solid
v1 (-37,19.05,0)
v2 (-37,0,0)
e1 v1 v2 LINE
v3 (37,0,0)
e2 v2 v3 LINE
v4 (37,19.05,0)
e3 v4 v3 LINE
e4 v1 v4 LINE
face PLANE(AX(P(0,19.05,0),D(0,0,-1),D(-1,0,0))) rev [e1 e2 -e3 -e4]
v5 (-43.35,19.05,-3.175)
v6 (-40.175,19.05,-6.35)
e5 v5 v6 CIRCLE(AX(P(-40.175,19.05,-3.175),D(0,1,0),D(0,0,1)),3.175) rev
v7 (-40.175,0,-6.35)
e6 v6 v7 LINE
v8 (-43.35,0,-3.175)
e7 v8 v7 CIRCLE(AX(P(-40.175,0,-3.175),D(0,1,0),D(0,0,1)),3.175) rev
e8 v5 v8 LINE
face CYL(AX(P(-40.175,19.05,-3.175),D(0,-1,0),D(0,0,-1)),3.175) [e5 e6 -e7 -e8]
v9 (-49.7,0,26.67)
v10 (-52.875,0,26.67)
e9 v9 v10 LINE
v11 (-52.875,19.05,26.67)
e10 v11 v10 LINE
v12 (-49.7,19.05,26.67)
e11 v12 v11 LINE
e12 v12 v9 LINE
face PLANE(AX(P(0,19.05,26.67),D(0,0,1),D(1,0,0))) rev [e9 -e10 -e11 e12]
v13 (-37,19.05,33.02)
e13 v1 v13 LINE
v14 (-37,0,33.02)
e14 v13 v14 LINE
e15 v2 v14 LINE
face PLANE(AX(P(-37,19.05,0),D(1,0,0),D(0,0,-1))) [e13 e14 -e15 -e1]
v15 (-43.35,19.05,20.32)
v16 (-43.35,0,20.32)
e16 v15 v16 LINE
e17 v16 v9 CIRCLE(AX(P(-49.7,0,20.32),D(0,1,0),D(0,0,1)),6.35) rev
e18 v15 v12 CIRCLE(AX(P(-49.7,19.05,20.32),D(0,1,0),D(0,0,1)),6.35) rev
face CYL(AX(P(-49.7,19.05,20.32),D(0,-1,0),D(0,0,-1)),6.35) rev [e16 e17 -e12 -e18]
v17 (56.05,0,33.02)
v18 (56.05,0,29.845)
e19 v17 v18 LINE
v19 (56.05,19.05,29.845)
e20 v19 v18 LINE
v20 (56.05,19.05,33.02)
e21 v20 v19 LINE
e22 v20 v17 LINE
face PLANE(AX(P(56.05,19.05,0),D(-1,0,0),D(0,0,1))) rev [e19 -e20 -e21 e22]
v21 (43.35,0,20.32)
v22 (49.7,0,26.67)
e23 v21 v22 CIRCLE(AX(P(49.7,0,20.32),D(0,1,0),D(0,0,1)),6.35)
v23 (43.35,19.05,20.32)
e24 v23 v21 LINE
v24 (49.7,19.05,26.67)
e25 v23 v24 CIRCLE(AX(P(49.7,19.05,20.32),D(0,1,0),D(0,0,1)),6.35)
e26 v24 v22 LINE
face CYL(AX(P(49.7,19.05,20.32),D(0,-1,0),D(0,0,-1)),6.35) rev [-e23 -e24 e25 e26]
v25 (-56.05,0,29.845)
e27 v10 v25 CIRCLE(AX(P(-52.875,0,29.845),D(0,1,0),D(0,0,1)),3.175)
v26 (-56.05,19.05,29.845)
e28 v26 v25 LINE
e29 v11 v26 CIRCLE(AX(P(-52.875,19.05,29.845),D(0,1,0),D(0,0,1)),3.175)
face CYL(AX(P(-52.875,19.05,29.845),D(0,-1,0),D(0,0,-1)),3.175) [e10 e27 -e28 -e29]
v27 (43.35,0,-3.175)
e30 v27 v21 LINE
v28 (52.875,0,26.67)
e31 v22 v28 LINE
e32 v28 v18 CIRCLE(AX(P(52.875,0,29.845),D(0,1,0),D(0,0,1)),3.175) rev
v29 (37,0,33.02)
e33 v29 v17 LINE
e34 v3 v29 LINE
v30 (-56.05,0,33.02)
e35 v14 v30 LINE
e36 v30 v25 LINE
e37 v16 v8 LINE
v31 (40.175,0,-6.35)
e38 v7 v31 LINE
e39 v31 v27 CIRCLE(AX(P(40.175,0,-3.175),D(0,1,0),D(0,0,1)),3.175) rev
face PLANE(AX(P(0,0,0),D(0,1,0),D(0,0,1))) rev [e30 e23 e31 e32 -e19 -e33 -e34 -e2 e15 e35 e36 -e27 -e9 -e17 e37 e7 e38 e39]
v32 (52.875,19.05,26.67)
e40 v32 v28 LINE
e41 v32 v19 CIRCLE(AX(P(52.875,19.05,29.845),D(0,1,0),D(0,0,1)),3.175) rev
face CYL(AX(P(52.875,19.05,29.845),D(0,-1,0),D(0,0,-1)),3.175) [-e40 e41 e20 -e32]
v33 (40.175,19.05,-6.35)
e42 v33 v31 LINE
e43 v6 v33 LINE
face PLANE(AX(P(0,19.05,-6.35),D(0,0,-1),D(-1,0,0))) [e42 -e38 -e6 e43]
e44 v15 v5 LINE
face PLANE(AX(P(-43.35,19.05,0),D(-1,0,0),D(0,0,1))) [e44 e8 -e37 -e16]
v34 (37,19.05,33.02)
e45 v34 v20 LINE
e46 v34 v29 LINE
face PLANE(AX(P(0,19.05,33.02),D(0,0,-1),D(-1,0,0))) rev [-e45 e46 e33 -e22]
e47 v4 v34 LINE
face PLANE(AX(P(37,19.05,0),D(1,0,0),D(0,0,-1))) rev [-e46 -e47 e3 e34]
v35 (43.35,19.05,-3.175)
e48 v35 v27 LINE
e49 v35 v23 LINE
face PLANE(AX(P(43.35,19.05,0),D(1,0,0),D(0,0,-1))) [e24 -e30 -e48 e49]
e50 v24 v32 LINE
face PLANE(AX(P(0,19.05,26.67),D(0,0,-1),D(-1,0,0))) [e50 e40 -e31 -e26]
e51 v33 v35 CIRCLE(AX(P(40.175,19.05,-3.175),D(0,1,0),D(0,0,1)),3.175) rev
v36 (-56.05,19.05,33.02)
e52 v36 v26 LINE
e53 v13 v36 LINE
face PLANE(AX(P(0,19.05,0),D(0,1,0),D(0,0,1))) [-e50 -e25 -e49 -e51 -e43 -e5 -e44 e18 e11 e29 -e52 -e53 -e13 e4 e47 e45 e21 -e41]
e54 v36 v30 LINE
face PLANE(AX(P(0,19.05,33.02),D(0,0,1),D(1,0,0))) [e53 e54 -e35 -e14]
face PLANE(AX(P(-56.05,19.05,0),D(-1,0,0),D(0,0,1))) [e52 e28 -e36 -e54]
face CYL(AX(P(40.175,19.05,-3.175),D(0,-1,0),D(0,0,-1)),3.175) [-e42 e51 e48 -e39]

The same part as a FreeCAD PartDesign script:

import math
import FreeCAD as App
import Part
import Sketcher

V = App.Vector
Q = App.Units.Quantity

doc = App.newDocument("Part")
body = doc.addObject("PartDesign::Body", "Body")

# Sketch on XZ plane
sketch1 = body.newObject("Sketcher::SketchObject", "Sketch")
sketch1.AttachmentSupport = (doc.getObject("XZ_Plane"), [""])
sketch1.MapMode = "FlatFace"
sketch1.addGeometry(Part.LineSegment(V(-37, 33, 0), V(-37, 0, 0)), False)
sketch1.addGeometry(Part.LineSegment(V(-37, 0, 0), V(37, 0, 0)), False)
sketch1.addGeometry(Part.LineSegment(V(37, 0, 0), V(37, 33, 0)), False)
sketch1.addGeometry(Part.LineSegment(V(37, 33, 0), V(56, 33, 0)), False)
sketch1.addGeometry(Part.LineSegment(V(56, 33, 0), V(56, 29.8, 0)), False)
sketch1.addGeometry(Part.ArcOfCircle(Part.Circle(V(52.9, 29.8, 0), V(0, 0, 1), 3.2), math.radians(-90), math.radians(0)), False)
sketch1.addGeometry(Part.LineSegment(V(52.9, 26.7, 0), V(49.7, 26.7, 0)), False)
sketch1.addGeometry(Part.ArcOfCircle(Part.Circle(V(49.7, 20.3, 0), V(0, 0, 1), 6.3), math.radians(90), math.radians(180)), False)
sketch1.addGeometry(Part.LineSegment(V(43.4, 20.3, 0), V(43.4, -3.2, 0)), False)
sketch1.addGeometry(Part.ArcOfCircle(Part.Circle(V(40.2, -3.2, 0), V(0, 0, 1), 3.2), math.radians(-90), math.radians(0)), False)
sketch1.addGeometry(Part.LineSegment(V(40.2, -6.3, 0), V(-40.2, -6.3, 0)), False)
sketch1.addGeometry(Part.ArcOfCircle(Part.Circle(V(-40.2, -3.2, 0), V(0, 0, 1), 3.2), math.radians(-180), math.radians(-90)), False)
sketch1.addGeometry(Part.LineSegment(V(-43.4, -3.2, 0), V(-43.4, 20.3, 0)), False)
sketch1.addGeometry(Part.ArcOfCircle(Part.Circle(V(-49.7, 20.3, 0), V(0, 0, 1), 6.3), math.radians(0), math.radians(90)), False)
sketch1.addGeometry(Part.LineSegment(V(-49.7, 26.7, 0), V(-52.9, 26.7, 0)), False)
sketch1.addGeometry(Part.ArcOfCircle(Part.Circle(V(-52.9, 29.8, 0), V(0, 0, 1), 3.2), math.radians(-180), math.radians(-90)), False)
sketch1.addGeometry(Part.LineSegment(V(-56, 29.8, 0), V(-56, 33, 0)), False)
sketch1.addGeometry(Part.LineSegment(V(-56, 33, 0), V(-37, 33, 0)), False)
sketch1.addConstraint(Sketcher.Constraint("Coincident", 0, 2, 1, 1))
sketch1.addConstraint(Sketcher.Constraint("Coincident", 1, 2, 2, 1))
sketch1.addConstraint(Sketcher.Constraint("Coincident", 2, 2, 3, 1))
sketch1.addConstraint(Sketcher.Constraint("Coincident", 3, 2, 4, 1))
sketch1.addConstraint(Sketcher.Constraint("Tangent", 4, 2, 5, 2))
sketch1.addConstraint(Sketcher.Constraint("Tangent", 5, 1, 6, 1))
sketch1.addConstraint(Sketcher.Constraint("Tangent", 6, 2, 7, 1))
sketch1.addConstraint(Sketcher.Constraint("Tangent", 7, 2, 8, 1))
sketch1.addConstraint(Sketcher.Constraint("Tangent", 8, 2, 9, 2))
sketch1.addConstraint(Sketcher.Constraint("Tangent", 9, 1, 10, 1))
sketch1.addConstraint(Sketcher.Constraint("Tangent", 10, 2, 11, 2))
sketch1.addConstraint(Sketcher.Constraint("Tangent", 11, 1, 12, 1))
sketch1.addConstraint(Sketcher.Constraint("Tangent", 12, 2, 13, 1))
sketch1.addConstraint(Sketcher.Constraint("Tangent", 13, 2, 14, 1))
sketch1.addConstraint(Sketcher.Constraint("Tangent", 14, 2, 15, 2))
sketch1.addConstraint(Sketcher.Constraint("Tangent", 15, 1, 16, 1))
sketch1.addConstraint(Sketcher.Constraint("Coincident", 16, 2, 17, 1))
sketch1.addConstraint(Sketcher.Constraint("Coincident", 17, 2, 0, 1))
sketch1.addConstraint(Sketcher.Constraint("Vertical", 0))
sketch1.addConstraint(Sketcher.Constraint("Horizontal", 1))
sketch1.addConstraint(Sketcher.Constraint("Vertical", 2))
sketch1.addConstraint(Sketcher.Constraint("Horizontal", 3))
sketch1.addConstraint(Sketcher.Constraint("Vertical", 4))
sketch1.addConstraint(Sketcher.Constraint("Horizontal", 6))
sketch1.addConstraint(Sketcher.Constraint("Vertical", 8))
sketch1.addConstraint(Sketcher.Constraint("Horizontal", 10))
sketch1.addConstraint(Sketcher.Constraint("Vertical", 12))
sketch1.addConstraint(Sketcher.Constraint("Horizontal", 14))
sketch1.addConstraint(Sketcher.Constraint("Vertical", 16))
sketch1.addConstraint(Sketcher.Constraint("Horizontal", 17))
sketch1.addConstraint(Sketcher.Constraint("Equal", 5, 9))
sketch1.addConstraint(Sketcher.Constraint("Equal", 9, 11))
sketch1.addConstraint(Sketcher.Constraint("Equal", 7, 13))
sketch1.addConstraint(Sketcher.Constraint("Equal", 11, 15))
sketch1.addConstraint(Sketcher.Constraint("Symmetric", 0, 2, 1, 2, -1, 1))
sketch1.addConstraint(Sketcher.Constraint("Symmetric", 7, 3, 13, 3, -2))
sketch1.addConstraint(Sketcher.Constraint("Symmetric", 3, 2, 16, 2, -2))
sketch1.addConstraint(Sketcher.Constraint("Equal", 14, 4))
sketch1.addConstraint(Sketcher.Constraint("Radius", 7, Q("0.25 in")))
sketch1.addConstraint(Sketcher.Constraint("DistanceY", 0, 2, 0, 1, Q("1.3 in")))
sketch1.addConstraint(Sketcher.Constraint("Radius", 5, Q("0.125 in")))
sketch1.addConstraint(Sketcher.Constraint("DistanceX", 3, 1, 3, 2, Q("0.75 in")))
sketch1.addConstraint(Sketcher.Constraint("DistanceY", -1, 1, 7, 3, Q("0.8 in")))
sketch1.addConstraint(Sketcher.Constraint("DistanceY", 9, 3, 5, 3, Q("1.3 in")))
sketch1.addConstraint(Sketcher.Constraint("DistanceX", 1, 1, 1, 2, 74.0))
pad1 = body.newObject("PartDesign::Pad", "Pad")
pad1.Profile = sketch1
pad1.Length = Q("0.75 in")
pad1.Reversed = True

doc.recompute()
